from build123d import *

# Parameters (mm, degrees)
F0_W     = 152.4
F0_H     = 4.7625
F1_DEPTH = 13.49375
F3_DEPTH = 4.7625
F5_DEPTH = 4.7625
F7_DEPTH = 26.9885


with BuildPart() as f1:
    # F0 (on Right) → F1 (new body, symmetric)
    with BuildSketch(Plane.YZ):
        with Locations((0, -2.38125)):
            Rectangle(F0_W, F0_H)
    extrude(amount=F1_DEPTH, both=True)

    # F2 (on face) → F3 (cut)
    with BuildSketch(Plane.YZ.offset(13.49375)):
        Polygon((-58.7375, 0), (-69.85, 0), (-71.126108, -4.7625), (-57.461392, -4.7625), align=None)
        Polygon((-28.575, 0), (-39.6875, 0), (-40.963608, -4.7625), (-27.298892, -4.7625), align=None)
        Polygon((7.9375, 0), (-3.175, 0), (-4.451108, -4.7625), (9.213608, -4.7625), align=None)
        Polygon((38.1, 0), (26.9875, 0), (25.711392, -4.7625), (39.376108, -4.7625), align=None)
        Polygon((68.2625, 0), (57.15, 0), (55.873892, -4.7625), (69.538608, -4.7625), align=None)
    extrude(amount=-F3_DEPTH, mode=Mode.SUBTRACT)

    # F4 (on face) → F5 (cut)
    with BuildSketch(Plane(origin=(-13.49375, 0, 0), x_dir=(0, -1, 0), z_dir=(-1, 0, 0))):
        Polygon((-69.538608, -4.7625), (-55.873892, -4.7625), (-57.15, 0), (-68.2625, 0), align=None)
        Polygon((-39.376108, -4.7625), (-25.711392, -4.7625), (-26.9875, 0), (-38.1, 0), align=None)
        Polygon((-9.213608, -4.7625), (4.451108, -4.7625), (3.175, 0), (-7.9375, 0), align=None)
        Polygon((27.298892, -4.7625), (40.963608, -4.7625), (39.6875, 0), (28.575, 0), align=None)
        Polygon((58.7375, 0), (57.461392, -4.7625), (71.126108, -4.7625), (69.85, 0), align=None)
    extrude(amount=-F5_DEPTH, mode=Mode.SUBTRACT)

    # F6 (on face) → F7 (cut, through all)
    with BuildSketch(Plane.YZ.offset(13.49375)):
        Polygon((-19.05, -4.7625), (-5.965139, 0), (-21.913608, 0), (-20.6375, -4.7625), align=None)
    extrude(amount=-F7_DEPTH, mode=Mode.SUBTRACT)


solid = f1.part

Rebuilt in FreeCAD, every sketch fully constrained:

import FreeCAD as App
import Part
import Sketcher
Q = App.Units.Quantity

doc = App.newDocument("Part")
params = doc.addObject("Spreadsheet::Sheet", "Params")
for row, (alias, value) in enumerate([
    ("sketch1_width", "6 in"),
    ("sketch1_height", "0.1875 in"),
    ("pad1_length", "1.0625 in"),
    ("sketch2_width", "0.4375 in"),
    ("pocket1_length", "0.1875 in"),
    ("sketch3_width", "0.4375 in"),
    ("pocket2_length", "0.1875 in"),
    ("sketch4_width", "0.0625 in"),
], start=1):
    params.set(f"A{row}", alias)
    params.set(f"B{row}", "=" + value)
    params.setAlias(f"B{row}", alias)

body = doc.addObject("PartDesign::Body", "Body")
body.AllowCompound = True

# Sketch on YZ plane
sketch1 = body.newObject("Sketcher::SketchObject", "Sketch")
sketch1.AttachmentSupport = (doc.getObject("YZ_Plane"), [""])
sketch1.MapMode = "FlatFace"
sketch1.addGeometry(Part.LineSegment(App.Vector(-76.2, 0, 0), App.Vector(-76.2, -4.8, 0)), False)
sketch1.addGeometry(Part.LineSegment(App.Vector(-76.2, -4.8, 0), App.Vector(76.2, -4.8, 0)), False)
sketch1.addGeometry(Part.LineSegment(App.Vector(76.2, -4.8, 0), App.Vector(76.2, 0, 0)), False)
sketch1.addGeometry(Part.LineSegment(App.Vector(76.2, 0, 0), App.Vector(-76.2, 0, 0)), False)
sketch1.addConstraint(Sketcher.Constraint("Coincident", 0, 2, 1, 1))
sketch1.addConstraint(Sketcher.Constraint("Coincident", 1, 2, 2, 1))
sketch1.addConstraint(Sketcher.Constraint("Coincident", 2, 2, 3, 1))
sketch1.addConstraint(Sketcher.Constraint("Coincident", 3, 2, 0, 1))
sketch1.addConstraint(Sketcher.Constraint("Vertical", 0))
sketch1.addConstraint(Sketcher.Constraint("Horizontal", 1))
sketch1.addConstraint(Sketcher.Constraint("Vertical", 2))
sketch1.addConstraint(Sketcher.Constraint("Horizontal", 3))
sketch1.addConstraint(Sketcher.Constraint("Symmetric", 2, 2, 3, 2, -1, 1))
sketch1.addConstraint(Sketcher.Constraint("DistanceX", 1, 1, 1, 2, Q("6 in")))
sketch1.addConstraint(Sketcher.Constraint("DistanceY", 0, 2, 0, 1, Q("0.1875 in")))
sketch1.setExpression("Constraints[9]", "Params.sketch1_width")
sketch1.setExpression("Constraints[10]", "Params.sketch1_height")
pad1 = body.newObject("PartDesign::Pad", "Pad")
pad1.Profile = sketch1
pad1.setExpression("Length", "Params.pad1_length")
pad1.Midplane = True

# Sketch on YZ plane
sketch2 = body.newObject("Sketcher::SketchObject", "Sketch001")
sketch2.AttachmentSupport = (doc.getObject("YZ_Plane"), [""])
sketch2.MapMode = "FlatFace"
sketch2.AttachmentOffset = App.Placement(App.Vector(0, 0, 0.53125 * 25.4), App.Rotation())
sketch2.addGeometry(Part.LineSegment(App.Vector(-58.7, 0, 0), App.Vector(-69.8, 0, 0)), False)
sketch2.addGeometry(Part.LineSegment(App.Vector(-69.8, 0, 0), App.Vector(-71.1, -4.8, 0)), False)
sketch2.addGeometry(Part.LineSegment(App.Vector(-71.1, -4.8, 0), App.Vector(-57.5, -4.8, 0)), False)
sketch2.addGeometry(Part.LineSegment(App.Vector(-57.5, -4.8, 0), App.Vector(-58.7, 0, 0)), False)
sketch2.addGeometry(Part.LineSegment(App.Vector(-28.6, 0, 0), App.Vector(-39.7, 0, 0)), False)
sketch2.addGeometry(Part.LineSegment(App.Vector(-39.7, 0, 0), App.Vector(-41, -4.8, 0)), False)
sketch2.addGeometry(Part.LineSegment(App.Vector(-41, -4.8, 0), App.Vector(-27.3, -4.8, 0)), False)
sketch2.addGeometry(Part.LineSegment(App.Vector(-27.3, -4.8, 0), App.Vector(-28.6, 0, 0)), False)
sketch2.addGeometry(Part.LineSegment(App.Vector(7.9, 0, 0), App.Vector(-3.2, 0, 0)), False)
sketch2.addGeometry(Part.LineSegment(App.Vector(-3.2, 0, 0), App.Vector(-4.5, -4.8, 0)), False)
sketch2.addGeometry(Part.LineSegment(App.Vector(-4.5, -4.8, 0), App.Vector(9.2, -4.8, 0)), False)
sketch2.addGeometry(Part.LineSegment(App.Vector(9.2, -4.8, 0), App.Vector(7.9, 0, 0)), False)
sketch2.addGeometry(Part.LineSegment(App.Vector(38.1, 0, 0), App.Vector(27, 0, 0)), False)
sketch2.addGeometry(Part.LineSegment(App.Vector(27, 0, 0), App.Vector(25.7, -4.8, 0)), False)
sketch2.addGeometry(Part.LineSegment(App.Vector(25.7, -4.8, 0), App.Vector(39.4, -4.8, 0)), False)
sketch2.addGeometry(Part.LineSegment(App.Vector(39.4, -4.8, 0), App.Vector(38.1, 0, 0)), False)
sketch2.addGeometry(Part.LineSegment(App.Vector(68.3, 0, 0), App.Vector(57.1, 0, 0)), False)
sketch2.addGeometry(Part.LineSegment(App.Vector(57.1, 0, 0), App.Vector(55.9, -4.8, 0)), False)
sketch2.addGeometry(Part.LineSegment(App.Vector(55.9, -4.8, 0), App.Vector(69.5, -4.8, 0)), False)
sketch2.addGeometry(Part.LineSegment(App.Vector(69.5, -4.8, 0), App.Vector(68.3, 0, 0)), False)
sketch2.addConstraint(Sketcher.Constraint("Coincident", 0, 2, 1, 1))
sketch2.addConstraint(Sketcher.Constraint("Coincident", 1, 2, 2, 1))
sketch2.addConstraint(Sketcher.Constraint("Coincident", 2, 2, 3, 1))
sketch2.addConstraint(Sketcher.Constraint("Coincident", 3, 2, 0, 1))
sketch2.addConstraint(Sketcher.Constraint("Coincident", 4, 2, 5, 1))
sketch2.addConstraint(Sketcher.Constraint("Coincident", 5, 2, 6, 1))
sketch2.addConstraint(Sketcher.Constraint("Coincident", 6, 2, 7, 1))
sketch2.addConstraint(Sketcher.Constraint("Coincident", 7, 2, 4, 1))
sketch2.addConstraint(Sketcher.Constraint("Coincident", 8, 2, 9, 1))
sketch2.addConstraint(Sketcher.Constraint("Coincident", 9, 2, 10, 1))
sketch2.addConstraint(Sketcher.Constraint("Coincident", 10, 2, 11, 1))
sketch2.addConstraint(Sketcher.Constraint("Coincident", 11, 2, 8, 1))
sketch2.addConstraint(Sketcher.Constraint("Coincident", 12, 2, 13, 1))
sketch2.addConstraint(Sketcher.Constraint("Coincident", 13, 2, 14, 1))
sketch2.addConstraint(Sketcher.Constraint("Coincident", 14, 2, 15, 1))
sketch2.addConstraint(Sketcher.Constraint("Coincident", 15, 2, 12, 1))
sketch2.addConstraint(Sketcher.Constraint("Coincident", 16, 2, 17, 1))
sketch2.addConstraint(Sketcher.Constraint("Coincident", 17, 2, 18, 1))
sketch2.addConstraint(Sketcher.Constraint("Coincident", 18, 2, 19, 1))
sketch2.addConstraint(Sketcher.Constraint("Coincident", 19, 2, 16, 1))
sketch2.addConstraint(Sketcher.Constraint("Horizontal", 0))
sketch2.addConstraint(Sketcher.Constraint("Horizontal", 2))
sketch2.addConstraint(Sketcher.Constraint("Horizontal", 4))
sketch2.addConstraint(Sketcher.Constraint("Horizontal", 6))
sketch2.addConstraint(Sketcher.Constraint("Horizontal", 8))
sketch2.addConstraint(Sketcher.Constraint("Horizontal", 10))
sketch2.addConstraint(Sketcher.Constraint("Horizontal", 12))
sketch2.addConstraint(Sketcher.Constraint("Horizontal", 14))
sketch2.addConstraint(Sketcher.Constraint("Horizontal", 16))
sketch2.addConstraint(Sketcher.Constraint("Horizontal", 18))
sketch2.addConstraint(Sketcher.Constraint("PointOnObject", 0, 2, -1))
sketch2.addConstraint(Sketcher.Constraint("PointOnObject", 4, 2, -1))
sketch2.addConstraint(Sketcher.Constraint("PointOnObject", 8, 2, -1))
sketch2.addConstraint(Sketcher.Constraint("PointOnObject", 12, 2, -1))
sketch2.addConstraint(Sketcher.Constraint("PointOnObject", 16, 2, -1))
sketch2.addConstraint(Sketcher.Constraint("Parallel", 1, 5))
sketch2.addConstraint(Sketcher.Constraint("Parallel", 3, 7))
sketch2.addConstraint(Sketcher.Constraint("Parallel", 5, 9))
sketch2.addConstraint(Sketcher.Constraint("Parallel", 7, 11))
sketch2.addConstraint(Sketcher.Constraint("Parallel", 9, 13))
sketch2.addConstraint(Sketcher.Constraint("Parallel", 11, 15))
sketch2.addConstraint(Sketcher.Constraint("Parallel", 13, 17))
sketch2.addConstraint(Sketcher.Constraint("Parallel", 15, 19))
sketch2.addConstraint(Sketcher.Constraint("Horizontal", 2, 2, 5, 2))
sketch2.addConstraint(Sketcher.Constraint("Horizontal", 6, 2, 9, 2))
sketch2.addConstraint(Sketcher.Constraint("Horizontal", 10, 2, 13, 2))
sketch2.addConstraint(Sketcher.Constraint("Horizontal", 14, 2, 17, 2))
sketch2.addConstraint(Sketcher.Constraint("Equal", 0, 4))
sketch2.addConstraint(Sketcher.Constraint("Equal", 4, 8))
sketch2.addConstraint(Sketcher.Constraint("Equal", 8, 12))
sketch2.addConstraint(Sketcher.Constraint("Equal", 12, 16))
sketch2.addConstraint(Sketcher.Constraint("Equal", 1, 3))
sketch2.addConstraint(Sketcher.Constraint("Angle", 1, Q("-105 deg")))
sketch2.addConstraint(Sketcher.Constraint("DistanceX", 7, 2, 8, 2, Q("1 in")))
sketch2.addConstraint(Sketcher.Constraint("DistanceX", -1, 1, 15, 2, Q("1.5 in")))
sketch2.addConstraint(Sketcher.Constraint("DistanceX", 0, 2, 0, 1, Q("0.4375 in")))
sketch2.addConstraint(Sketcher.Constraint("DistanceX", 0, 2, -1, 1, Q("2.75 in")))
sketch2.addConstraint(Sketcher.Constraint("DistanceX", -1, 1, 16, 2, Q("2.25 in")))
sketch2.addConstraint(Sketcher.Constraint("DistanceX", 3, 2, 4, 2, Q("0.75 in")))
sketch2.addConstraint(Sketcher.Constraint("DistanceY", 1, 2, -1, 1, Q("0.1875 in")))
sketch2.setExpression("Constraints[55]", "Params.sketch2_width")
pocket1 = body.newObject("PartDesign::Pocket", "Pocket")
pocket1.Profile = sketch2
pocket1.setExpression("Length", "Params.pocket1_length")

# Sketch on YZ plane
sketch3 = body.newObject("Sketcher::SketchObject", "Sketch002")
sketch3.AttachmentSupport = (doc.getObject("YZ_Plane"), [""])
sketch3.MapMode = "FlatFace"
sketch3.AttachmentOffset = App.Placement(App.Vector(0, 0, -0.53125 * 25.4), App.Rotation())
sketch3.addGeometry(Part.LineSegment(App.Vector(69.5, -4.8, 0), App.Vector(55.9, -4.8, 0)), False)
sketch3.addGeometry(Part.LineSegment(App.Vector(55.9, -4.8, 0), App.Vector(57.1, 0, 0)), False)
sketch3.addGeometry(Part.LineSegment(App.Vector(57.1, 0, 0), App.Vector(68.3, 0, 0)), False)
sketch3.addGeometry(Part.LineSegment(App.Vector(68.3, 0, 0), App.Vector(69.5, -4.8, 0)), False)
sketch3.addGeometry(Part.LineSegment(App.Vector(39.4, -4.8, 0), App.Vector(25.7, -4.8, 0)), False)
sketch3.addGeometry(Part.LineSegment(App.Vector(25.7, -4.8, 0), App.Vector(27, 0, 0)), False)
sketch3.addGeometry(Part.LineSegment(App.Vector(27, 0, 0), App.Vector(38.1, 0, 0)), False)
sketch3.addGeometry(Part.LineSegment(App.Vector(38.1, 0, 0), App.Vector(39.4, -4.8, 0)), False)
sketch3.addGeometry(Part.LineSegment(App.Vector(9.2, -4.8, 0), App.Vector(-4.5, -4.8, 0)), False)
sketch3.addGeometry(Part.LineSegment(App.Vector(-4.5, -4.8, 0), App.Vector(-3.2, 0, 0)), False)
sketch3.addGeometry(Part.LineSegment(App.Vector(-3.2, 0, 0), App.Vector(7.9, 0, 0)), False)
sketch3.addGeometry(Part.LineSegment(App.Vector(7.9, 0, 0), App.Vector(9.2, -4.8, 0)), False)
sketch3.addGeometry(Part.LineSegment(App.Vector(-27.3, -4.8, 0), App.Vector(-41, -4.8, 0)), False)
sketch3.addGeometry(Part.LineSegment(App.Vector(-41, -4.8, 0), App.Vector(-39.7, 0, 0)), False)
sketch3.addGeometry(Part.LineSegment(App.Vector(-39.7, 0, 0), App.Vector(-28.6, 0, 0)), False)
sketch3.addGeometry(Part.LineSegment(App.Vector(-28.6, 0, 0), App.Vector(-27.3, -4.8, 0)), False)
sketch3.addGeometry(Part.LineSegment(App.Vector(-58.7, 0, 0), App.Vector(-57.5, -4.8, 0)), False)
sketch3.addGeometry(Part.LineSegment(App.Vector(-57.5, -4.8, 0), App.Vector(-71.1, -4.8, 0)), False)
sketch3.addGeometry(Part.LineSegment(App.Vector(-71.1, -4.8, 0), App.Vector(-69.8, 0, 0)), False)
sketch3.addGeometry(Part.LineSegment(App.Vector(-69.8, 0, 0), App.Vector(-58.7, 0, 0)), False)
sketch3.addConstraint(Sketcher.Constraint("Coincident", 0, 2, 1, 1))
sketch3.addConstraint(Sketcher.Constraint("Coincident", 1, 2, 2, 1))
sketch3.addConstraint(Sketcher.Constraint("Coincident", 2, 2, 3, 1))
sketch3.addConstraint(Sketcher.Constraint("Coincident", 3, 2, 0, 1))
sketch3.addConstraint(Sketcher.Constraint("Coincident", 4, 2, 5, 1))
sketch3.addConstraint(Sketcher.Constraint("Coincident", 5, 2, 6, 1))
sketch3.addConstraint(Sketcher.Constraint("Coincident", 6, 2, 7, 1))
sketch3.addConstraint(Sketcher.Constraint("Coincident", 7, 2, 4, 1))
sketch3.addConstraint(Sketcher.Constraint("Coincident", 8, 2, 9, 1))
sketch3.addConstraint(Sketcher.Constraint("Coincident", 9, 2, 10, 1))
sketch3.addConstraint(Sketcher.Constraint("Coincident", 10, 2, 11, 1))
sketch3.addConstraint(Sketcher.Constraint("Coincident", 11, 2, 8, 1))
sketch3.addConstraint(Sketcher.Constraint("Coincident", 12, 2, 13, 1))
sketch3.addConstraint(Sketcher.Constraint("Coincident", 13, 2, 14, 1))
sketch3.addConstraint(Sketcher.Constraint("Coincident", 14, 2, 15, 1))
sketch3.addConstraint(Sketcher.Constraint("Coincident", 15, 2, 12, 1))
sketch3.addConstraint(Sketcher.Constraint("Coincident", 16, 2, 17, 1))
sketch3.addConstraint(Sketcher.Constraint("Coincident", 17, 2, 18, 1))
sketch3.addConstraint(Sketcher.Constraint("Coincident", 18, 2, 19, 1))
sketch3.addConstraint(Sketcher.Constraint("Coincident", 19, 2, 16, 1))
sketch3.addConstraint(Sketcher.Constraint("Horizontal", 0))
sketch3.addConstraint(Sketcher.Constraint("Horizontal", 2))
sketch3.addConstraint(Sketcher.Constraint("Horizontal", 4))
sketch3.addConstraint(Sketcher.Constraint("Horizontal", 6))
sketch3.addConstraint(Sketcher.Constraint("Horizontal", 8))
sketch3.addConstraint(Sketcher.Constraint("Horizontal", 10))
sketch3.addConstraint(Sketcher.Constraint("Horizontal", 12))
sketch3.addConstraint(Sketcher.Constraint("Horizontal", 14))
sketch3.addConstraint(Sketcher.Constraint("Horizontal", 17))
sketch3.addConstraint(Sketcher.Constraint("Horizontal", 19))
sketch3.addConstraint(Sketcher.Constraint("PointOnObject", 1, 2, -1))
sketch3.addConstraint(Sketcher.Constraint("PointOnObject", 5, 2, -1))
sketch3.addConstraint(Sketcher.Constraint("PointOnObject", 9, 2, -1))
sketch3.addConstraint(Sketcher.Constraint("PointOnObject", 13, 2, -1))
sketch3.addConstraint(Sketcher.Constraint("PointOnObject", 18, 2, -1))
sketch3.addConstraint(Sketcher.Constraint("Parallel", 1, 5))
sketch3.addConstraint(Sketcher.Constraint("Parallel", 3, 7))
sketch3.addConstraint(Sketcher.Constraint("Parallel", 5, 9))
sketch3.addConstraint(Sketcher.Constraint("Parallel", 7, 11))
sketch3.addConstraint(Sketcher.Constraint("Parallel", 9, 13))
sketch3.addConstraint(Sketcher.Constraint("Parallel", 11, 15))
sketch3.addConstraint(Sketcher.Constraint("Parallel", 15, 16))
sketch3.addConstraint(Sketcher.Constraint("Parallel", 13, 18))
sketch3.addConstraint(Sketcher.Constraint("Horizontal", 3, 2, 4, 2))
sketch3.addConstraint(Sketcher.Constraint("Horizontal", 7, 2, 8, 2))
sketch3.addConstraint(Sketcher.Constraint("Horizontal", 11, 2, 12, 2))
sketch3.addConstraint(Sketcher.Constraint("Horizontal", 15, 2, 16, 2))
sketch3.addConstraint(Sketcher.Constraint("Equal", 0, 4))
sketch3.addConstraint(Sketcher.Constraint("Equal", 4, 8))
sketch3.addConstraint(Sketcher.Constraint("Equal", 8, 12))
sketch3.addConstraint(Sketcher.Constraint("Equal", 12, 17))
sketch3.addConstraint(Sketcher.Constraint("Equal", 1, 3))
sketch3.addConstraint(Sketcher.Constraint("Angle", 1, Q("75 deg")))
sketch3.addConstraint(Sketcher.Constraint("DistanceX", 14, 2, 9, 2, Q("1 in")))
sketch3.addConstraint(Sketcher.Constraint("DistanceX", -1, 1, 6, 2, Q("1.5 in")))
sketch3.addConstraint(Sketcher.Constraint("DistanceX", 2, 1, 2, 2, Q("0.4375 in")))
sketch3.addConstraint(Sketcher.Constraint("DistanceX", -1, 1, 1, 2, Q("2.25 in")))
sketch3.addConstraint(Sketcher.Constraint("DistanceX", 18, 2, -1, 1, Q("2.75 in")))
sketch3.addConstraint(Sketcher.Constraint("DistanceX", 10, 2, 5, 2, Q("0.75 in")))
sketch3.addConstraint(Sketcher.Constraint("DistanceY", 0, 2, -1, 1, Q("0.1875 in")))
sketch3.setExpression("Constraints[55]", "Params.sketch3_width")
pocket2 = body.newObject("PartDesign::Pocket", "Pocket001")
pocket2.Profile = sketch3
pocket2.setExpression("Length", "Params.pocket2_length")
pocket2.Reversed = True

# Sketch on YZ plane
sketch4 = body.newObject("Sketcher::SketchObject", "Sketch003")
sketch4.AttachmentSupport = (doc.getObject("YZ_Plane"), [""])
sketch4.MapMode = "FlatFace"
sketch4.AttachmentOffset = App.Placement(App.Vector(0, 0, 0.53125 * 25.4), App.Rotation())
sketch4.addGeometry(Part.LineSegment(App.Vector(-19.1, -4.8, 0), App.Vector(-6, 0, 0)), False)
sketch4.addGeometry(Part.LineSegment(App.Vector(-6, 0, 0), App.Vector(-21.9, 0, 0)), False)
sketch4.addGeometry(Part.LineSegment(App.Vector(-21.9, 0, 0), App.Vector(-20.6, -4.8, 0)), False)
sketch4.addGeometry(Part.LineSegment(App.Vector(-20.6, -4.8, 0), App.Vector(-19.1, -4.8, 0)), False)
sketch4.addConstraint(Sketcher.Constraint("Coincident", 0, 2, 1, 1))
sketch4.addConstraint(Sketcher.Constraint("Coincident", 1, 2, 2, 1))
sketch4.addConstraint(Sketcher.Constraint("Coincident", 2, 2, 3, 1))
sketch4.addConstraint(Sketcher.Constraint("Coincident", 3, 2, 0, 1))
sketch4.addConstraint(Sketcher.Constraint("Horizontal", 1))
sketch4.addConstraint(Sketcher.Constraint("Horizontal", 3))
sketch4.addConstraint(Sketcher.Constraint("PointOnObject", 0, 2, -1))
sketch4.addConstraint(Sketcher.Constraint("Angle", 0, Q("20 deg")))
sketch4.addConstraint(Sketcher.Constraint("Angle", 2, Q("-75 deg")))
sketch4.addConstraint(Sketcher.Constraint("DistanceX", 3, 1, 3, 2, Q("0.0625 in")))
sketch4.addConstraint(Sketcher.Constraint("DistanceX", 3, 2, -1, 1, Q("0.75 in")))
sketch4.addConstraint(Sketcher.Constraint("DistanceY", 2, 2, -1, 1, Q("0.1875 in")))
sketch4.setExpression("Constraints[9]", "Params.sketch4_width")
pocket3 = body.newObject("PartDesign::Pocket", "Pocket002")
pocket3.Profile = sketch4
pocket3.Type = "ThroughAll"

doc.recompute()
